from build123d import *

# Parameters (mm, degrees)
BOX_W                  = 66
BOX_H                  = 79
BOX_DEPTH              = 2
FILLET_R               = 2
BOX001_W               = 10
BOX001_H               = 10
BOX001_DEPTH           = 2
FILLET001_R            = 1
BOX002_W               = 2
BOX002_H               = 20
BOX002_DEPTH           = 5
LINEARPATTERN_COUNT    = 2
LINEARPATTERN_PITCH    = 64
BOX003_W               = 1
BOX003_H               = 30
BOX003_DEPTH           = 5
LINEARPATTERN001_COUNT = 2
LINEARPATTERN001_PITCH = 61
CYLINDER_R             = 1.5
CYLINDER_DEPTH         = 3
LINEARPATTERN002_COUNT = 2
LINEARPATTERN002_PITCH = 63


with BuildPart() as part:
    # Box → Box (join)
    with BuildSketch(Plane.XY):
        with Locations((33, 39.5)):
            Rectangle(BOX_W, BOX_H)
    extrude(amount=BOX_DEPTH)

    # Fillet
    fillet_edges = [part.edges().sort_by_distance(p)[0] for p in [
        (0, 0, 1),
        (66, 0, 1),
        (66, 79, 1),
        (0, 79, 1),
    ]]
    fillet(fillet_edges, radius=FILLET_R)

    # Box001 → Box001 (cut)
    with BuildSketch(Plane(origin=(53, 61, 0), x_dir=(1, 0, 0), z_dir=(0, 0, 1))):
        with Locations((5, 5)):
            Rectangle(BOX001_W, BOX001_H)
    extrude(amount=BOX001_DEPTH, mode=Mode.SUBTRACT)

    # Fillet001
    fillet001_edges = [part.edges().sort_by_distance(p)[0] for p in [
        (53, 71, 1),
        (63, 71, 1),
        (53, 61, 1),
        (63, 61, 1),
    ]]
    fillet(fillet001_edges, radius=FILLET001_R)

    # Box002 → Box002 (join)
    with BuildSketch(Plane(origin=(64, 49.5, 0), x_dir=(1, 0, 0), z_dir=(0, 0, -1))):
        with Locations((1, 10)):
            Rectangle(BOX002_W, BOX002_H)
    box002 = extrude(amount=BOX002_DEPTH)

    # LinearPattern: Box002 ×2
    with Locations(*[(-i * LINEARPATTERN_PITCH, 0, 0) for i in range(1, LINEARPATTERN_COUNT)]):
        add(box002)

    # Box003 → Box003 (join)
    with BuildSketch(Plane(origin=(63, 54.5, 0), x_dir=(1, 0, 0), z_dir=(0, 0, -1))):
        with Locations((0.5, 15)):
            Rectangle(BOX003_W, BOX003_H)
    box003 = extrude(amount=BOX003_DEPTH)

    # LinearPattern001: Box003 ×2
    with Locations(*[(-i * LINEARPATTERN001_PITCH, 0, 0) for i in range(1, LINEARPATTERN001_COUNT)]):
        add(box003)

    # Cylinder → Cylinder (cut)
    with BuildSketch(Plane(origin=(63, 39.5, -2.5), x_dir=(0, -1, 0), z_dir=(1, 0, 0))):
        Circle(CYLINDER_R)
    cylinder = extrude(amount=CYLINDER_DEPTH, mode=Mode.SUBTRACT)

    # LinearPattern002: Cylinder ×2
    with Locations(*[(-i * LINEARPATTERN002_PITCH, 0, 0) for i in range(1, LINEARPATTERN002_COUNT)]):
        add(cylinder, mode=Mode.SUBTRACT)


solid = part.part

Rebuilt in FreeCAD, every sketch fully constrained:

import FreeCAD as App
import Part
import Sketcher
from FreeCAD import Vector


def edges_at(feature, points):
    """Names of the edges that pass closest to the given points."""
    edges = feature.Shape.Edges
    near = lambda p: min(range(len(edges)), key=lambda i: edges[i].distToShape(Part.Vertex(*p))[0])
    return sorted({f"Edge{near(p) + 1}" for p in points})


def add_polygon(sketch, points):
    """Adds a closed chain of lines whose ends are joined by coincident constraints."""
    first, n = sketch.GeometryCount, len(points)
    for a, b in zip(points, points[1:] + points[:1]):
        sketch.addGeometry(Part.LineSegment(App.Vector(*a, 0), App.Vector(*b, 0)), False)
    for i in range(n):
        sketch.addConstraint(Sketcher.Constraint("Coincident", first + i, 2, first + (i + 1) % n, 1))

doc = App.newDocument("Part")
body = doc.addObject("PartDesign::Body", "Body")

# Sketch on XY plane
sketch1 = body.newObject("Sketcher::SketchObject", "Sketch")
sketch1.AttachmentSupport = (doc.getObject("XY_Plane"), [""])
sketch1.MapMode = "FlatFace"
add_polygon(sketch1, [(0, 79), (0, 0), (66, 0), (66, 79)])  # lines 0-3
sketch1.addConstraint(Sketcher.Constraint("Vertical", 0))
sketch1.addConstraint(Sketcher.Constraint("Horizontal", 1))
sketch1.addConstraint(Sketcher.Constraint("Vertical", 2))
sketch1.addConstraint(Sketcher.Constraint("Horizontal", 3))
sketch1.addConstraint(Sketcher.Constraint("Coincident", 0, 2, -1, 1))
sketch1.addConstraint(Sketcher.Constraint("DistanceX", 1, 1, 1, 2, 66.0))
sketch1.addConstraint(Sketcher.Constraint("DistanceY", 0, 2, 0, 1, 79.0))
pad1 = body.newObject("PartDesign::Pad", "Pad")
pad1.Profile = sketch1
pad1.Length = 2
doc.recompute()

fillet = body.newObject("PartDesign::Fillet", "Fillet")
fillet.Base = (pad1, edges_at(pad1, [
    (0, 0, 1),
    (66, 0, 1),
    (66, 79, 1),
    (0, 79, 1),
]))
fillet.Radius = 2

# Sketch on XY plane
sketch2 = body.newObject("Sketcher::SketchObject", "Sketch001")
sketch2.AttachmentSupport = (doc.getObject("XY_Plane"), [""])
sketch2.MapMode = "FlatFace"
add_polygon(sketch2, [(53, 71), (53, 61), (63, 61), (63, 71)])  # lines 0-3
sketch2.addConstraint(Sketcher.Constraint("Vertical", 0))
sketch2.addConstraint(Sketcher.Constraint("Horizontal", 1))
sketch2.addConstraint(Sketcher.Constraint("Vertical", 2))
sketch2.addConstraint(Sketcher.Constraint("Horizontal", 3))
sketch2.addConstraint(Sketcher.Constraint("Equal", 3, 0))
sketch2.addConstraint(Sketcher.Constraint("DistanceX", 1, 1, 1, 2, 10.0))
sketch2.addConstraint(Sketcher.Constraint("DistanceX", -1, 1, 0, 2, 53.0))
sketch2.addConstraint(Sketcher.Constraint("DistanceY", -1, 1, 0, 2, 61.0))
pocket1 = body.newObject("PartDesign::Pocket", "Pocket")
pocket1.Profile = sketch2
pocket1.Length = 2
pocket1.Reversed = True
doc.recompute()

fillet2 = body.newObject("PartDesign::Fillet", "Fillet001")
fillet2.Base = (pocket1, edges_at(pocket1, [
    (53, 71, 1),
    (63, 71, 1),
    (53, 61, 1),
    (63, 61, 1),
]))
fillet2.Radius = 1

# Sketch on XY plane
sketch3 = body.newObject("Sketcher::SketchObject", "Sketch002")
sketch3.AttachmentSupport = (doc.getObject("XY_Plane"), [""])
sketch3.MapMode = "FlatFace"
add_polygon(sketch3, [(64, 29.5), (64, 49.5), (66, 49.5), (66, 29.5)])  # lines 0-3
sketch3.addConstraint(Sketcher.Constraint("Vertical", 0))
sketch3.addConstraint(Sketcher.Constraint("Horizontal", 1))
sketch3.addConstraint(Sketcher.Constraint("Vertical", 2))
sketch3.addConstraint(Sketcher.Constraint("Horizontal", 3))
sketch3.addConstraint(Sketcher.Constraint("DistanceX", 1, 1, 1, 2, 2.0))
sketch3.addConstraint(Sketcher.Constraint("DistanceY", 0, 1, 0, 2, 20.0))
sketch3.addConstraint(Sketcher.Constraint("DistanceX", -1, 1, 0, 2, 64.0))
sketch3.addConstraint(Sketcher.Constraint("DistanceY", -1, 1, 0, 2, 49.5))
pad2 = body.newObject("PartDesign::Pad", "Pad001")
pad2.Profile = sketch3
pad2.Length = 5
pad2.Reversed = True
doc.recompute()

linearpattern = body.newObject("PartDesign::LinearPattern", "LinearPattern")
linearpattern.Originals = [pad2]
linearpattern.Direction = (doc.getObject("X_Axis"), [""])
linearpattern.Mode = "offset"
linearpattern.Offset = 64
linearpattern.Occurrences = 2
linearpattern.Reversed = True
body.Tip = linearpattern

# Sketch on XY plane
sketch4 = body.newObject("Sketcher::SketchObject", "Sketch003")
sketch4.AttachmentSupport = (doc.getObject("XY_Plane"), [""])
sketch4.MapMode = "FlatFace"
add_polygon(sketch4, [(63, 24.5), (63, 54.5), (64, 54.5), (64, 24.5)])  # lines 0-3
sketch4.addConstraint(Sketcher.Constraint("Vertical", 0))
sketch4.addConstraint(Sketcher.Constraint("Horizontal", 1))
sketch4.addConstraint(Sketcher.Constraint("Vertical", 2))
sketch4.addConstraint(Sketcher.Constraint("Horizontal", 3))
sketch4.addConstraint(Sketcher.Constraint("DistanceX", 1, 1, 1, 2, 1.0))
sketch4.addConstraint(Sketcher.Constraint("DistanceY", 0, 1, 0, 2, 30.0))
sketch4.addConstraint(Sketcher.Constraint("DistanceX", -1, 1, 0, 2, 63.0))
sketch4.addConstraint(Sketcher.Constraint("DistanceY", -1, 1, 0, 2, 54.5))
pad3 = body.newObject("PartDesign::Pad", "Pad002")
pad3.Profile = sketch4
pad3.Length = 5
pad3.Reversed = True
doc.recompute()

linearpattern2 = body.newObject("PartDesign::LinearPattern", "LinearPattern001")
linearpattern2.Originals = [pad3]
linearpattern2.Direction = (doc.getObject("X_Axis"), [""])
linearpattern2.Mode = "offset"
linearpattern2.Offset = 61
linearpattern2.Occurrences = 2
linearpattern2.Reversed = True
body.Tip = linearpattern2

# Sketch on YZ plane
sketch5 = body.newObject("Sketcher::SketchObject", "Sketch004")
sketch5.AttachmentSupport = (doc.getObject("YZ_Plane"), [""])
sketch5.MapMode = "FlatFace"
sketch5.AttachmentOffset = App.Placement(Vector(0, 0, 63), App.Rotation())
sketch5.addGeometry(Part.Circle(Vector(39.5, -2.5, 0), Vector(0, 0, 1), 1.5), False)
sketch5.addConstraint(Sketcher.Constraint("Diameter", 0, 3.0))
sketch5.addConstraint(Sketcher.Constraint("DistanceX", -1, 1, 0, 3, 39.5))
sketch5.addConstraint(Sketcher.Constraint("DistanceY", 0, 3, -1, 1, 2.5))
pocket2 = body.newObject("PartDesign::Pocket", "Pocket001")
pocket2.Profile = sketch5
pocket2.Length = 3
pocket2.Reversed = True
doc.recompute()

linearpattern3 = body.newObject("PartDesign::LinearPattern", "LinearPattern002")
linearpattern3.Originals = [pocket2]
linearpattern3.Direction = (doc.getObject("X_Axis"), [""])
linearpattern3.Mode = "offset"
linearpattern3.Offset = 63
linearpattern3.Occurrences = 2
linearpattern3.Reversed = True
body.Tip = linearpattern3

doc.recompute()
